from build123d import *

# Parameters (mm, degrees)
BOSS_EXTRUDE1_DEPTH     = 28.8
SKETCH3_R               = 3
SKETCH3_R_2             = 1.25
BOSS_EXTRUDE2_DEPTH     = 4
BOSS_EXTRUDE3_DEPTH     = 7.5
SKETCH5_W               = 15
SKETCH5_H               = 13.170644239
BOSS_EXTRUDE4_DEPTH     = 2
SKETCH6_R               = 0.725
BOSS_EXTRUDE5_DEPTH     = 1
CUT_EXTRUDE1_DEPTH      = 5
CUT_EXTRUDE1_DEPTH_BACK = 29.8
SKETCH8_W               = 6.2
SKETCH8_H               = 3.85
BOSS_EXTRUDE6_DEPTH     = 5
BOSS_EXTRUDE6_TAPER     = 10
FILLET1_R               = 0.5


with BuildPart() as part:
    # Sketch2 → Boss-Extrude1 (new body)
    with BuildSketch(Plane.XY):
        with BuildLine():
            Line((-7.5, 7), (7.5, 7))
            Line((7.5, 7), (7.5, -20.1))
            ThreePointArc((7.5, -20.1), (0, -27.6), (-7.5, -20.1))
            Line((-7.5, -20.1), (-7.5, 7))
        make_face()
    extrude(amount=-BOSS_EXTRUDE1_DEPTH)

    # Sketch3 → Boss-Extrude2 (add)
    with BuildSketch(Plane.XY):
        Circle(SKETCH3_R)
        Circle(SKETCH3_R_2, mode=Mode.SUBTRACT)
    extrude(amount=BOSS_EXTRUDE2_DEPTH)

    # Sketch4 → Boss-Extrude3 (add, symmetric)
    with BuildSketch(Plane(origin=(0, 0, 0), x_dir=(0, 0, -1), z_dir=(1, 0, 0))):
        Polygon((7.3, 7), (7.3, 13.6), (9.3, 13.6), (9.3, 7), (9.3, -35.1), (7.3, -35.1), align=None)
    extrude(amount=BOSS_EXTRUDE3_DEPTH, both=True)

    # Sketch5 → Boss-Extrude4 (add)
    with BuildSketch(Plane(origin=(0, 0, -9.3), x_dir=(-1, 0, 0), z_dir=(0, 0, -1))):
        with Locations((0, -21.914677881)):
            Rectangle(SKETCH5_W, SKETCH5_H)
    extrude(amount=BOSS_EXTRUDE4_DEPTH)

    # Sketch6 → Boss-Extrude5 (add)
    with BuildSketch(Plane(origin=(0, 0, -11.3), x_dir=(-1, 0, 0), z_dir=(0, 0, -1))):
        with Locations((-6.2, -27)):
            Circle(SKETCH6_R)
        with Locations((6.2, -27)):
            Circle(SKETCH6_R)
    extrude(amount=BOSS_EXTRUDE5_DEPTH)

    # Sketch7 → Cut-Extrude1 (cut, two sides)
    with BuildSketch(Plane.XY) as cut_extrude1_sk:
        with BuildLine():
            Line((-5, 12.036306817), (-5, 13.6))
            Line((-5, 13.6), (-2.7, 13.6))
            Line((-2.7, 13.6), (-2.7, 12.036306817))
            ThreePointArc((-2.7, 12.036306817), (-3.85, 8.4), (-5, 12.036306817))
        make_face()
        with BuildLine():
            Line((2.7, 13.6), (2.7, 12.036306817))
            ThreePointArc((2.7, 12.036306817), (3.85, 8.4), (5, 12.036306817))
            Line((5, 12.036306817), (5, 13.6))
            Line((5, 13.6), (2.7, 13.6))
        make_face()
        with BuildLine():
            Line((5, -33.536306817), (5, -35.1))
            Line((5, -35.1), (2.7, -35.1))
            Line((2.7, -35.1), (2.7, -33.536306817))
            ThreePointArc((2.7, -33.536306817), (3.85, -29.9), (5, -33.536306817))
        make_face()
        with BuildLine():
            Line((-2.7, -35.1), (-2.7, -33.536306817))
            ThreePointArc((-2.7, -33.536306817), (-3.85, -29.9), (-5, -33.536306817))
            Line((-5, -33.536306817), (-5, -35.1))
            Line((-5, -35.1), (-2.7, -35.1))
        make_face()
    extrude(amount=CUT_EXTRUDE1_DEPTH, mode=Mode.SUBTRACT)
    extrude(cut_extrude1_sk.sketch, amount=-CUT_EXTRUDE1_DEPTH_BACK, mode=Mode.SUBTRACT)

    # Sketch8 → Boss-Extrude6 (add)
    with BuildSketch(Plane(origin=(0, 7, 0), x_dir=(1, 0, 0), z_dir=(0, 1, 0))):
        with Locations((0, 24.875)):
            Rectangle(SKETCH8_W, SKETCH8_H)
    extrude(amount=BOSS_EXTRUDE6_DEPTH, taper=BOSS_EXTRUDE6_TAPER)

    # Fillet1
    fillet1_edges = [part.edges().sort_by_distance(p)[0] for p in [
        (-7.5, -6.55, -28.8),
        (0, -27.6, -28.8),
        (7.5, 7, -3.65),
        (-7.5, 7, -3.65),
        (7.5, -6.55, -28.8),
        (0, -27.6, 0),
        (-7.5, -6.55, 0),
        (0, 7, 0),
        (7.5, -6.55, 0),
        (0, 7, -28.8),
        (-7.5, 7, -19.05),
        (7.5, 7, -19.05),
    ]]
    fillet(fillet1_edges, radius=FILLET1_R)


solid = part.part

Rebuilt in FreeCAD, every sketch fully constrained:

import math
import FreeCAD as App
import Part
import Sketcher
from FreeCAD import Vector
Q = App.Units.Quantity


def edges_at(feature, points):
    """Names of the edges that pass closest to the given points."""
    edges = feature.Shape.Edges
    near = lambda p: min(range(len(edges)), key=lambda i: edges[i].distToShape(Part.Vertex(*p))[0])
    return sorted({f"Edge{near(p) + 1}" for p in points})


def add_polygon(sketch, points):
    """Adds a closed chain of lines whose ends are joined by coincident constraints."""
    first, n = sketch.GeometryCount, len(points)
    for a, b in zip(points, points[1:] + points[:1]):
        sketch.addGeometry(Part.LineSegment(App.Vector(*a, 0), App.Vector(*b, 0)), False)
    for i in range(n):
        sketch.addConstraint(Sketcher.Constraint("Coincident", first + i, 2, first + (i + 1) % n, 1))

doc = App.newDocument("Part")
body = doc.addObject("PartDesign::Body", "Body")

sketch1 = doc.addObject("Sketcher::SketchObject", "Sketch")
body.addObject(sketch1)
sketch1.AttachmentSupport = (doc.XY_Plane, [""])
sketch1.MapMode = "FlatFace"
sketch1.addGeometry(Part.LineSegment(Vector(8, 7, 0), Vector(-8, 7, 0)), False)
sketch1.addGeometry(Part.LineSegment(Vector(-8, 7, 0), Vector(-8, -20, 0)), False)
sketch1.addGeometry(Part.ArcOfCircle(Part.Circle(Vector(0, -20, 0), Vector(0, 0, 1), 8), math.radians(180), math.radians(360)), False)
sketch1.addGeometry(Part.LineSegment(Vector(8, -20, 0), Vector(8, 7, 0)), False)
sketch1.addConstraint(Sketcher.Constraint("Coincident", 0, 2, 1, 1))
sketch1.addConstraint(Sketcher.Constraint("Tangent", 1, 2, 2, 1))
sketch1.addConstraint(Sketcher.Constraint("Tangent", 2, 2, 3, 1))
sketch1.addConstraint(Sketcher.Constraint("Coincident", 3, 2, 0, 1))
sketch1.addConstraint(Sketcher.Constraint("Horizontal", 0))
sketch1.addConstraint(Sketcher.Constraint("Vertical", 1))
sketch1.addConstraint(Sketcher.Constraint("Vertical", 3))
sketch1.addConstraint(Sketcher.Constraint("PointOnObject", 2, 3, -2))
sketch1.addConstraint(Sketcher.Constraint("Radius", 2, Q("7.5 mm")))
sketch1.addConstraint(Sketcher.Constraint("DistanceY", 1, 2, 1, 1, Q("27.1 mm")))
sketch1.addConstraint(Sketcher.Constraint("DistanceY", -1, 1, 0, 2, Q("7 mm")))
pad1 = doc.addObject("PartDesign::Pad", "Pad")
body.addObject(pad1)
pad1.Profile = sketch1
pad1.Length = 28.8
pad1.Reversed = True

sketch2 = doc.addObject("Sketcher::SketchObject", "Sketch001")
body.addObject(sketch2)
sketch2.AttachmentSupport = (doc.XY_Plane, [""])
sketch2.MapMode = "FlatFace"
sketch2.addGeometry(Part.Circle(Vector(0, 0, 0), Vector(0, 0, 1), 3), False)
sketch2.addGeometry(Part.Circle(Vector(0, 0, 0), Vector(0, 0, 1), 1.2), False)
sketch2.addConstraint(Sketcher.Constraint("Coincident", 0, 3, -1, 1))
sketch2.addConstraint(Sketcher.Constraint("Coincident", 1, 3, -1, 1))
sketch2.addConstraint(Sketcher.Constraint("Diameter", 0, Q("6 mm")))
sketch2.addConstraint(Sketcher.Constraint("Diameter", 1, Q("2.5 mm")))
pad2 = doc.addObject("PartDesign::Pad", "Pad001")
body.addObject(pad2)
pad2.Profile = sketch2
pad2.Length = 4

sketch3 = doc.addObject("Sketcher::SketchObject", "Sketch002")
body.addObject(sketch3)
sketch3.AttachmentSupport = (doc.YZ_Plane, [""])
sketch3.MapMode = "FlatFace"
add_polygon(sketch3, [(13.6, -7.3), (-35.1, -7.3), (-35.1, -9.3), (13.6, -9.3)])
sketch3.addConstraint(Sketcher.Constraint("Horizontal", 0))
sketch3.addConstraint(Sketcher.Constraint("Vertical", 1))
sketch3.addConstraint(Sketcher.Constraint("Horizontal", 2))
sketch3.addConstraint(Sketcher.Constraint("Vertical", 3))
sketch3.addConstraint(Sketcher.Constraint("DistanceY", 1, 2, 1, 1, Q("2 mm")))
sketch3.addConstraint(Sketcher.Constraint("DistanceX", 0, 2, 0, 1, Q("48.7 mm")))
sketch3.addConstraint(Sketcher.Constraint("DistanceX", 0, 2, -1, 1, Q("35.1 mm")))
sketch3.addConstraint(Sketcher.Constraint("DistanceY", 0, 2, -1, 1, Q("7.3 mm")))
pad3 = doc.addObject("PartDesign::Pad", "Pad002")
body.addObject(pad3)
pad3.Profile = sketch3
pad3.Length = 15
pad3.Midplane = True

sketch4 = doc.addObject("Sketcher::SketchObject", "Sketch003")
body.addObject(sketch4)
sketch4.AttachmentSupport = (doc.XY_Plane, [""])
sketch4.MapMode = "FlatFace"
sketch4.AttachmentOffset = App.Placement(Vector(0, 0, -9.3), App.Rotation())
add_polygon(sketch4, [(8, -15), (8, -28), (-8, -28), (-8, -15)])
sketch4.addConstraint(Sketcher.Constraint("Vertical", 0))
sketch4.addConstraint(Sketcher.Constraint("Horizontal", 1))
sketch4.addConstraint(Sketcher.Constraint("Vertical", 2))
sketch4.addConstraint(Sketcher.Constraint("Horizontal", 3))
sketch4.addConstraint(Sketcher.Constraint("DistanceX", 1, 2, 1, 1, Q("15 mm")))
sketch4.addConstraint(Sketcher.Constraint("DistanceX", -1, 1, 0, 2, Q("7.5 mm")))
sketch4.addConstraint(Sketcher.Constraint("DistanceY", 0, 2, -1, 1, Q("28.5 mm")))
sketch4.addConstraint(Sketcher.Constraint("DistanceY", 0, 2, 0, 1, Q("13.170644 mm")))
pad4 = doc.addObject("PartDesign::Pad", "Pad003")
body.addObject(pad4)
pad4.Profile = sketch4
pad4.Length = 2
pad4.Reversed = True

sketch5 = doc.addObject("Sketcher::SketchObject", "Sketch004")
body.addObject(sketch5)
sketch5.AttachmentSupport = (doc.XY_Plane, [""])
sketch5.MapMode = "FlatFace"
sketch5.AttachmentOffset = App.Placement(Vector(0, 0, -11.3), App.Rotation())
sketch5.addGeometry(Part.Circle(Vector(6.2, -27, 0), Vector(0, 0, 1), 0.7), False)
sketch5.addGeometry(Part.Circle(Vector(-6.2, -27, 0), Vector(0, 0, 1), 0.7), False)
sketch5.addConstraint(Sketcher.Constraint("Equal", 0, 1))
sketch5.addConstraint(Sketcher.Constraint("Symmetric", 0, 3, 1, 3, -2))
sketch5.addConstraint(Sketcher.Constraint("Diameter", 0, Q("1.45 mm")))
sketch5.addConstraint(Sketcher.Constraint("DistanceY", 0, 3, -1, 1, Q("27 mm")))
sketch5.addConstraint(Sketcher.Constraint("DistanceX", -1, 1, 0, 3, Q("6.2 mm")))
pad5 = doc.addObject("PartDesign::Pad", "Pad004")
body.addObject(pad5)
pad5.Profile = sketch5
pad5.Length = 1
pad5.Reversed = True

sketch6 = doc.addObject("Sketcher::SketchObject", "Sketch005")
body.addObject(sketch6)
sketch6.AttachmentSupport = (doc.XY_Plane, [""])
sketch6.MapMode = "FlatFace"
sketch6.addGeometry(Part.LineSegment(Vector(-5, 13.6, 0), Vector(-5, 12, 0)), False)
sketch6.addGeometry(Part.ArcOfCircle(Part.Circle(Vector(-3.9, 10.4, 0), Vector(0, 0, 1), 2), math.radians(125), math.radians(415)), False)
sketch6.addGeometry(Part.LineSegment(Vector(-2.7, 12, 0), Vector(-2.7, 13.6, 0)), False)
sketch6.addGeometry(Part.LineSegment(Vector(-2.7, 13.6, 0), Vector(-5, 13.6, 0)), False)
sketch6.addGeometry(Part.LineSegment(Vector(2.7, 13.6, 0), Vector(2.7, 12, 0)), False)
sketch6.addGeometry(Part.ArcOfCircle(Part.Circle(Vector(3.9, 10.4, 0), Vector(0, 0, 1), 2), math.radians(125), math.radians(415)), False)
sketch6.addGeometry(Part.LineSegment(Vector(5, 12, 0), Vector(5, 13.6, 0)), False)
sketch6.addGeometry(Part.LineSegment(Vector(5, 13.6, 0), Vector(2.7, 13.6, 0)), False)
sketch6.addGeometry(Part.LineSegment(Vector(5, -35.1, 0), Vector(5, -33.5, 0)), False)
sketch6.addGeometry(Part.ArcOfCircle(Part.Circle(Vector(3.9, -31.9, 0), Vector(0, 0, 1), 2), math.radians(-55), math.radians(235)), False)
sketch6.addGeometry(Part.LineSegment(Vector(2.7, -33.5, 0), Vector(2.7, -35.1, 0)), False)
sketch6.addGeometry(Part.LineSegment(Vector(2.7, -35.1, 0), Vector(5, -35.1, 0)), False)
sketch6.addGeometry(Part.LineSegment(Vector(-2.7, -35.1, 0), Vector(-2.7, -33.5, 0)), False)
sketch6.addGeometry(Part.ArcOfCircle(Part.Circle(Vector(-3.9, -31.9, 0), Vector(0, 0, 1), 2), math.radians(-55), math.radians(235)), False)
sketch6.addGeometry(Part.LineSegment(Vector(-5, -33.5, 0), Vector(-5, -35.1, 0)), False)
sketch6.addGeometry(Part.LineSegment(Vector(-5, -35.1, 0), Vector(-2.7, -35.1, 0)), False)
sketch6.addConstraint(Sketcher.Constraint("Coincident", 0, 2, 1, 1))
sketch6.addConstraint(Sketcher.Constraint("Coincident", 1, 2, 2, 1))
sketch6.addConstraint(Sketcher.Constraint("Coincident", 2, 2, 3, 1))
sketch6.addConstraint(Sketcher.Constraint("Coincident", 3, 2, 0, 1))
sketch6.addConstraint(Sketcher.Constraint("Coincident", 4, 2, 5, 1))
sketch6.addConstraint(Sketcher.Constraint("Coincident", 5, 2, 6, 1))
sketch6.addConstraint(Sketcher.Constraint("Coincident", 6, 2, 7, 1))
sketch6.addConstraint(Sketcher.Constraint("Coincident", 7, 2, 4, 1))
sketch6.addConstraint(Sketcher.Constraint("Coincident", 8, 2, 9, 1))
sketch6.addConstraint(Sketcher.Constraint("Coincident", 9, 2, 10, 1))
sketch6.addConstraint(Sketcher.Constraint("Coincident", 10, 2, 11, 1))
sketch6.addConstraint(Sketcher.Constraint("Coincident", 11, 2, 8, 1))
sketch6.addConstraint(Sketcher.Constraint("Coincident", 12, 2, 13, 1))
sketch6.addConstraint(Sketcher.Constraint("Coincident", 13, 2, 14, 1))
sketch6.addConstraint(Sketcher.Constraint("Coincident", 14, 2, 15, 1))
sketch6.addConstraint(Sketcher.Constraint("Coincident", 15, 2, 12, 1))
sketch6.addConstraint(Sketcher.Constraint("Vertical", 0))
sketch6.addConstraint(Sketcher.Constraint("Vertical", 2))
sketch6.addConstraint(Sketcher.Constraint("Horizontal", 3))
sketch6.addConstraint(Sketcher.Constraint("Vertical", 4))
sketch6.addConstraint(Sketcher.Constraint("Vertical", 6))
sketch6.addConstraint(Sketcher.Constraint("Horizontal", 7))
sketch6.addConstraint(Sketcher.Constraint("Vertical", 8))
sketch6.addConstraint(Sketcher.Constraint("Vertical", 10))
sketch6.addConstraint(Sketcher.Constraint("Horizontal", 11))
sketch6.addConstraint(Sketcher.Constraint("Vertical", 12))
sketch6.addConstraint(Sketcher.Constraint("Vertical", 14))
sketch6.addConstraint(Sketcher.Constraint("Horizontal", 15))
sketch6.addConstraint(Sketcher.Constraint("Equal", 1, 5))
sketch6.addConstraint(Sketcher.Constraint("Equal", 5, 9))
sketch6.addConstraint(Sketcher.Constraint("Equal", 9, 13))
sketch6.addConstraint(Sketcher.Constraint("Symmetric", 1, 3, 5, 3, -2))
sketch6.addConstraint(Sketcher.Constraint("Symmetric", 9, 3, 13, 3, -2))
sketch6.addConstraint(Sketcher.Constraint("Symmetric", 3, 2, 6, 2, -2))
sketch6.addConstraint(Sketcher.Constraint("Symmetric", 11, 2, 14, 2, -2))
sketch6.addConstraint(Sketcher.Constraint("Horizontal", 0, 2, 1, 2))
sketch6.addConstraint(Sketcher.Constraint("Horizontal", 1, 2, 4, 2))
sketch6.addConstraint(Sketcher.Constraint("Horizontal", 8, 2, 9, 2))
sketch6.addConstraint(Sketcher.Constraint("Horizontal", 9, 2, 12, 2))
sketch6.addConstraint(Sketcher.Constraint("Vertical", 5, 3, 9, 3))
sketch6.addConstraint(Sketcher.Constraint("Vertical", 6, 2, 8, 2))
sketch6.addConstraint(Sketcher.Constraint("Equal", 6, 8))
sketch6.addConstraint(Sketcher.Constraint("Radius", 1, Q("2 mm")))
sketch6.addConstraint(Sketcher.Constraint("DistanceX", 3, 2, 3, 1, Q("2.3 mm")))
sketch6.addConstraint(Sketcher.Constraint("DistanceX", 0, 2, -1, 1, Q("5 mm")))
sketch6.addConstraint(Sketcher.Constraint("DistanceY", -1, 1, 1, 3, Q("10.4 mm")))
sketch6.addConstraint(Sketcher.Constraint("DistanceY", 9, 3, -1, 1, Q("31.9 mm")))
sketch6.addConstraint(Sketcher.Constraint("DistanceY", -1, 1, 2, 2, Q("13.6 mm")))
pocket1 = doc.addObject("PartDesign::Pocket", "Pocket")
body.addObject(pocket1)
pocket1.Profile = sketch6
pocket1.Type = "ThroughAll"
pocket1.Midplane = True

sketch7 = doc.addObject("Sketcher::SketchObject", "Sketch006")
body.addObject(sketch7)
sketch7.AttachmentSupport = (doc.XZ_Plane, [""])
sketch7.MapMode = "FlatFace"
sketch7.AttachmentOffset = App.Placement(Vector(0, 0, -7), App.Rotation())
add_polygon(sketch7, [(-3.1, -26.8), (-3.1, -22.9), (3.1, -22.9), (3.1, -26.8)])
sketch7.addConstraint(Sketcher.Constraint("Vertical", 0))
sketch7.addConstraint(Sketcher.Constraint("Horizontal", 1))
sketch7.addConstraint(Sketcher.Constraint("Vertical", 2))
sketch7.addConstraint(Sketcher.Constraint("Horizontal", 3))
sketch7.addConstraint(Sketcher.Constraint("DistanceX", 1, 1, 1, 2, Q("6.2 mm")))
sketch7.addConstraint(Sketcher.Constraint("DistanceY", 0, 1, 0, 2, Q("3.85 mm")))
sketch7.addConstraint(Sketcher.Constraint("DistanceX", 0, 2, -1, 1, Q("3.1 mm")))
sketch7.addConstraint(Sketcher.Constraint("DistanceY", 2, 2, -1, 1, Q("26.8 mm")))
pad6 = doc.addObject("PartDesign::Pad", "Pad005")
body.addObject(pad6)
pad6.Profile = sketch7
pad6.Length = 5
pad6.Reversed = True
pad6.TaperAngle = -10
doc.recompute()

fillet = doc.addObject("PartDesign::Fillet", "Fillet")
body.addObject(fillet)
fillet.Base = (pad6, edges_at(pad6, [
    (-7.5, -6.55, -28.8),
    (0, -27.6, -28.8),
    (7.5, 7, -3.65),
    (-7.5, 7, -3.65),
    (7.5, -6.55, -28.8),
    (0, -27.6, 0),
    (-7.5, -6.55, 0),
    (0, 7, 0),
    (7.5, -6.55, 0),
    (0, 7, -28.8),
    (-7.5, 7, -19.05),
    (7.5, 7, -19.05),
]))
fillet.Radius = 0.5

doc.recompute()
